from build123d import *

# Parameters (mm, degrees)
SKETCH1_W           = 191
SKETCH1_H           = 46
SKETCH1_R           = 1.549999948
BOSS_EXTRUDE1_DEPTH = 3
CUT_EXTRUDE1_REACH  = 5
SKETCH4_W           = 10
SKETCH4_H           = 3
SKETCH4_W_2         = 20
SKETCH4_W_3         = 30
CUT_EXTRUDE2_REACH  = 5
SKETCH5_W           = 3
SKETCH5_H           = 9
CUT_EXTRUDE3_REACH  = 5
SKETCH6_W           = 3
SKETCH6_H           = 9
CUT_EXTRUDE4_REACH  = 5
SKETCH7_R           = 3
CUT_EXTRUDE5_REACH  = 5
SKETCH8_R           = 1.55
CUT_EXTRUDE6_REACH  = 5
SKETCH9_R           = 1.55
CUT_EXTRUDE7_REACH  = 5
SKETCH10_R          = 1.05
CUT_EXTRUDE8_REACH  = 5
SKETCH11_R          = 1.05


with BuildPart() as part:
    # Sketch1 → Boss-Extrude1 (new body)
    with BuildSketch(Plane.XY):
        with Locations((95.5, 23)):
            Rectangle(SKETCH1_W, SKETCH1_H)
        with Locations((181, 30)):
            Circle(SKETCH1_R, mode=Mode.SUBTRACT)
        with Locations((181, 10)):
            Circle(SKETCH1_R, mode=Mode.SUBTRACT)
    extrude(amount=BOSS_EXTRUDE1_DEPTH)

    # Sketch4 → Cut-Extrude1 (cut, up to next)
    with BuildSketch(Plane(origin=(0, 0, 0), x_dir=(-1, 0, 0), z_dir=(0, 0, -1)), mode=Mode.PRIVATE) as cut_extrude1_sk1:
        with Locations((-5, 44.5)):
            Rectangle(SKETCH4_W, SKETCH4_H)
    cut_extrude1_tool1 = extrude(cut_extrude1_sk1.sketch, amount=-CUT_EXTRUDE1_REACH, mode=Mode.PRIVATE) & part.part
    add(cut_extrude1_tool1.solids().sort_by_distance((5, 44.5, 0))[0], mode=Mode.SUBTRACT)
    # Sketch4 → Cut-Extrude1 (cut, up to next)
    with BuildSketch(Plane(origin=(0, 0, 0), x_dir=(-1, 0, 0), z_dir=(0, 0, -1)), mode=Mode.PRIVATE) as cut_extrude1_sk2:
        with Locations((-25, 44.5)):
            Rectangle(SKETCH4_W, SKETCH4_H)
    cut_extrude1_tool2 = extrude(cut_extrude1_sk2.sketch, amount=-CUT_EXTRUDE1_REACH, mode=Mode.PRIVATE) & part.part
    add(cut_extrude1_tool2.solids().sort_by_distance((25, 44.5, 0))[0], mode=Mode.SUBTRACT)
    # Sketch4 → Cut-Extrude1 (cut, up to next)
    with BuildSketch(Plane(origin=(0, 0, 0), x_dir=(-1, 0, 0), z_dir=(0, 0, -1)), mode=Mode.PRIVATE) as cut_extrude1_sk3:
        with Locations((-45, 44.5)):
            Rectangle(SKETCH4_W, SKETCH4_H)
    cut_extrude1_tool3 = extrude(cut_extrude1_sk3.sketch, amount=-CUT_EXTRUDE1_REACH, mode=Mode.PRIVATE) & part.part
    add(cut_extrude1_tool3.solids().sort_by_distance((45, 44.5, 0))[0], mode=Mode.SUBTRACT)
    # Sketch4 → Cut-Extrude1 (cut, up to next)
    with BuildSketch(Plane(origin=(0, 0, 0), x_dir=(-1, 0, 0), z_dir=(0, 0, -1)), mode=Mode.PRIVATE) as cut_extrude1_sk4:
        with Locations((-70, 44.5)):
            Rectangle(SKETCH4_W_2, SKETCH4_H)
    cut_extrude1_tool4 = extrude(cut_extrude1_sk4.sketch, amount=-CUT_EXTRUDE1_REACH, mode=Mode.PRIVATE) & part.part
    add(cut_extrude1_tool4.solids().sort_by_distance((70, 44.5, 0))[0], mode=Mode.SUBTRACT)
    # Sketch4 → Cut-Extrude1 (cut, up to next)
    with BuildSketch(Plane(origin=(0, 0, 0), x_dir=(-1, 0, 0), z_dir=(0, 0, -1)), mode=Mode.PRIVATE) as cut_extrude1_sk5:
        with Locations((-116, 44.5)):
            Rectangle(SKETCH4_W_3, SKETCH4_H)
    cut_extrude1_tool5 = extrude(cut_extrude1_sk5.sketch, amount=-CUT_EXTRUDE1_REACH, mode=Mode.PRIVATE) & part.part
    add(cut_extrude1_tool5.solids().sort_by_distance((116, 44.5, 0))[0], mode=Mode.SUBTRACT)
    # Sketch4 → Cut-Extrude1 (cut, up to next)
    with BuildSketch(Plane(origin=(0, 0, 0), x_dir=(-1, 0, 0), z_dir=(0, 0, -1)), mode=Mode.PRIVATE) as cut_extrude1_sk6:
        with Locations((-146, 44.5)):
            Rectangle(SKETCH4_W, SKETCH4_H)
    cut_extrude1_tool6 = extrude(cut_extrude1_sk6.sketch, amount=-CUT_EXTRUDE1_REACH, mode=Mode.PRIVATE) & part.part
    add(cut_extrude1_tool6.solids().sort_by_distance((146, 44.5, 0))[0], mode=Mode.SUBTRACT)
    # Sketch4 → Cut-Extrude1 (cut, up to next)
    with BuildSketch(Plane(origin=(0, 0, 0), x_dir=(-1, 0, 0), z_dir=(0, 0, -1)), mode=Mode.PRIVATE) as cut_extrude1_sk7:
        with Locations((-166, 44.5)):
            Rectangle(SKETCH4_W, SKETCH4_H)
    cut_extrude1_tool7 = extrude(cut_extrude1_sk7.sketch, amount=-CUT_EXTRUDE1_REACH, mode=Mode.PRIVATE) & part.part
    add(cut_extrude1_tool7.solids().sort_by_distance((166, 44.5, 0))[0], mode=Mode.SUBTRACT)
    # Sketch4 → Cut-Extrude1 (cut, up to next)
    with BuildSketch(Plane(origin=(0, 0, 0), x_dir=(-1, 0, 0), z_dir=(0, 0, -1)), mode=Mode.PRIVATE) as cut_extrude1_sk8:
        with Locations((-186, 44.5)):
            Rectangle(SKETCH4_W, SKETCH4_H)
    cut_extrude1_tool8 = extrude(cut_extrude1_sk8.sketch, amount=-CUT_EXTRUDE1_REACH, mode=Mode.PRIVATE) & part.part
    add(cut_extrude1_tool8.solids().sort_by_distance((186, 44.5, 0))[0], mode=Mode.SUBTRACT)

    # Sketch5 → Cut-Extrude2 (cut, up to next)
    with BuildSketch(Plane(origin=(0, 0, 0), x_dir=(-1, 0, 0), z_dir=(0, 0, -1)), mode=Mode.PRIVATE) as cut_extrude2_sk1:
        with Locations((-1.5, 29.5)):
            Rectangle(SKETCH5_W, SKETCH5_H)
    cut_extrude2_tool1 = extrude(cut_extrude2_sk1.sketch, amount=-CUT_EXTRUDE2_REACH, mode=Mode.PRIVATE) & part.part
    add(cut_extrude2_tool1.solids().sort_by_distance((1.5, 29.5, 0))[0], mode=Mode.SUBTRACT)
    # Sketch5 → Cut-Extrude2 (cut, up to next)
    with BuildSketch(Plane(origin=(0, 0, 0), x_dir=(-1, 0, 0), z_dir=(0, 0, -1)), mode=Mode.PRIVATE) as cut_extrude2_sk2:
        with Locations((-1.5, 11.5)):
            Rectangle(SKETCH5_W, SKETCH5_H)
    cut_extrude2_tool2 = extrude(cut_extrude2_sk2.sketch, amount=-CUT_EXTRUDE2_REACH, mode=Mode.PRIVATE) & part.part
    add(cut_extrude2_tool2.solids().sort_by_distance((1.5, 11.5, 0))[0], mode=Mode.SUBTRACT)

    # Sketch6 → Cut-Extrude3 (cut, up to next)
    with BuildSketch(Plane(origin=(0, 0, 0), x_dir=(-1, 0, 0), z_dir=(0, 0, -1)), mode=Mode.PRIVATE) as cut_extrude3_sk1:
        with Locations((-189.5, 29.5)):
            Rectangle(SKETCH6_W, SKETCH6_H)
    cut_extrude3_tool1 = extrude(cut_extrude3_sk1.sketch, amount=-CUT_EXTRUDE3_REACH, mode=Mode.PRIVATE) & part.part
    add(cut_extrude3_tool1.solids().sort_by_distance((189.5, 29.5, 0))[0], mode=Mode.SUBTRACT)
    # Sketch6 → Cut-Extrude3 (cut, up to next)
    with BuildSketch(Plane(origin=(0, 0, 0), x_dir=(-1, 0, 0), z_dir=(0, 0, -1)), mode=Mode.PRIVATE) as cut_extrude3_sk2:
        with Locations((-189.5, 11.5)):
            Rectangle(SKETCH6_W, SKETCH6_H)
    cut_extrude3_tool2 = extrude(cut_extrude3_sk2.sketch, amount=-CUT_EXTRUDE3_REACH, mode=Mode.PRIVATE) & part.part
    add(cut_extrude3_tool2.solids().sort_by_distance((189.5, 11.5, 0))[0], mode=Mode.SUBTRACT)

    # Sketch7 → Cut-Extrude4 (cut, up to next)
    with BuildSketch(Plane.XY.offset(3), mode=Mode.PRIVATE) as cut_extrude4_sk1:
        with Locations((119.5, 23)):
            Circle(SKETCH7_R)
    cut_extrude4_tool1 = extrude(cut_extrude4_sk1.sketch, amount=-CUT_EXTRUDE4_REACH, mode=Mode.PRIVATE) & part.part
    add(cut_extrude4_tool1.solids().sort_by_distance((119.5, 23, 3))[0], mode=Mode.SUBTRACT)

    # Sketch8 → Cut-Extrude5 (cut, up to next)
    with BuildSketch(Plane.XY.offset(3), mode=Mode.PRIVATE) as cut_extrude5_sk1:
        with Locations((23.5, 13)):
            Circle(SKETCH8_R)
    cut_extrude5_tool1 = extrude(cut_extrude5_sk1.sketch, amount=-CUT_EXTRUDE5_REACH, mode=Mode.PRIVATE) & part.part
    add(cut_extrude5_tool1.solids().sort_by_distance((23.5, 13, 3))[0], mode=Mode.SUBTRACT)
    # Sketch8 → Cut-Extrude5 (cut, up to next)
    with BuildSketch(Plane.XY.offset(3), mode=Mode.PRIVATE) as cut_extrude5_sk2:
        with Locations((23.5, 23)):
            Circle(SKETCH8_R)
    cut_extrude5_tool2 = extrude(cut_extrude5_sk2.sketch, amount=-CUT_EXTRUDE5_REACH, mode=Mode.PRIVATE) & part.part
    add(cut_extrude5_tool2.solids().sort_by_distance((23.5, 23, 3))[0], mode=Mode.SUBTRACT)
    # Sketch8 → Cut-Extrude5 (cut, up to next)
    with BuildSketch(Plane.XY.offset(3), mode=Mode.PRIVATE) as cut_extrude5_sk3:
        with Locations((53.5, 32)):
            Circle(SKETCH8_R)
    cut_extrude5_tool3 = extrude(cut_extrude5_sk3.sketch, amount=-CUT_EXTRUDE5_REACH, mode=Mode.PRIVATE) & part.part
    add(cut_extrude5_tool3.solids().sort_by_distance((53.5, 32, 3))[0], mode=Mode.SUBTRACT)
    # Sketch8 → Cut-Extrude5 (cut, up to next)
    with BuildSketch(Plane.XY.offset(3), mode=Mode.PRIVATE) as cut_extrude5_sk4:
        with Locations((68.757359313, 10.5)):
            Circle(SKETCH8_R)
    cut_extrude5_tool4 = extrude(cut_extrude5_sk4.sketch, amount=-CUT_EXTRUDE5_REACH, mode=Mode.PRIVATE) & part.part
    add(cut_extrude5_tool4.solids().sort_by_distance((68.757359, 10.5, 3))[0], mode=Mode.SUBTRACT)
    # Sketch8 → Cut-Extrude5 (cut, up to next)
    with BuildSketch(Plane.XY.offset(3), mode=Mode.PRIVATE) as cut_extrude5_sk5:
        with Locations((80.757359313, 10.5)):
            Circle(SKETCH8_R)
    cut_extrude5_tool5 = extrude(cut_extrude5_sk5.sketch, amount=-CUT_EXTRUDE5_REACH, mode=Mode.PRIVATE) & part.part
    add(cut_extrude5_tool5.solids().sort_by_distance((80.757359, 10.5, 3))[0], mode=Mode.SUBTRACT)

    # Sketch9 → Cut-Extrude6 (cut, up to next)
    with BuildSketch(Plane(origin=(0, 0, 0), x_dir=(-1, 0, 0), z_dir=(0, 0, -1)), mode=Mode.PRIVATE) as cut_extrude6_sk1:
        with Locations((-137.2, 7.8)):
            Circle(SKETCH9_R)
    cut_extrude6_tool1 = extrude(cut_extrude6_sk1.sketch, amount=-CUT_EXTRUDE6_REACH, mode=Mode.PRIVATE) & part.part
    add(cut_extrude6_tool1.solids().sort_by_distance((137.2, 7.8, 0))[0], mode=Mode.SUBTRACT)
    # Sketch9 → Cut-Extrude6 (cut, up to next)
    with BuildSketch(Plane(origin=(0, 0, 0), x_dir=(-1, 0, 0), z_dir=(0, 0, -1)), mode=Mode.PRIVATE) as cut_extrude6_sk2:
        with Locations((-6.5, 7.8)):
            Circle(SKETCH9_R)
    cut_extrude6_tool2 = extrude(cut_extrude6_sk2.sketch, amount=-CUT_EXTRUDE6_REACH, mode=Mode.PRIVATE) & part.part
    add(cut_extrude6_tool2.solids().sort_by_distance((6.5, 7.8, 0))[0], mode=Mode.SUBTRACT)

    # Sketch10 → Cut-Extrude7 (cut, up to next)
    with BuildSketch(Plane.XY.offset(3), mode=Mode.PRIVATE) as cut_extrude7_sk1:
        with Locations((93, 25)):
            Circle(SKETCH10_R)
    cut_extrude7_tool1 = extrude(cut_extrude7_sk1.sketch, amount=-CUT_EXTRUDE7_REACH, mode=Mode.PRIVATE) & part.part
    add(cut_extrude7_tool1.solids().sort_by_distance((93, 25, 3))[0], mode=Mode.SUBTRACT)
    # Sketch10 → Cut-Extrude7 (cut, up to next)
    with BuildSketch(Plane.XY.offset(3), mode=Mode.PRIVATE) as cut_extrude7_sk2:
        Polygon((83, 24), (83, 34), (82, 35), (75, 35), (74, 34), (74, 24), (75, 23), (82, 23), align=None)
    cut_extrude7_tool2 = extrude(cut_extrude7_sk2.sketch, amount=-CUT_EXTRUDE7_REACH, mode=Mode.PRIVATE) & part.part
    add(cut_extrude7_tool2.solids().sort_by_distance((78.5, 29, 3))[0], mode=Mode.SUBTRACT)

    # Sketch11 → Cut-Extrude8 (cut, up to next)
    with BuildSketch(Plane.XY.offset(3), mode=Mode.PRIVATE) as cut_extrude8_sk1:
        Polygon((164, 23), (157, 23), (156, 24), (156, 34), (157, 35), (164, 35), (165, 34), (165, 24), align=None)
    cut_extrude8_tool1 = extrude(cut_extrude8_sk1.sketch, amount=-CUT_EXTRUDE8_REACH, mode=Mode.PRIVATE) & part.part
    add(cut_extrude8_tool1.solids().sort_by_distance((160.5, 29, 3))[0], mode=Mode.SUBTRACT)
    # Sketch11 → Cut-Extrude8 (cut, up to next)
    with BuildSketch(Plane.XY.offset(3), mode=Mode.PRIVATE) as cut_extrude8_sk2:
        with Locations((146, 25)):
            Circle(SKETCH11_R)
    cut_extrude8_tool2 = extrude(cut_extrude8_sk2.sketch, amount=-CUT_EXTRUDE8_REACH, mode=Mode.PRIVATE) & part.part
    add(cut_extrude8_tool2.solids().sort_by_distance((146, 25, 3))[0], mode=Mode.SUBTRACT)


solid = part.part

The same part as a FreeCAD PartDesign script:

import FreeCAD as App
import Part
import Sketcher

doc = App.newDocument("Part")
body = doc.addObject("PartDesign::Body", "Body")

# Sketch on XY plane
sketch1 = doc.addObject("Sketcher::SketchObject", "Sketch")
body.addObject(sketch1)
sketch1.AttachmentSupport = (doc.XY_Plane, [""])
sketch1.MapMode = "FlatFace"
sketch1.addGeometry([
    Part.LineSegment(App.Vector(0, 46, 0), App.Vector(0, 0, 0)),  # 0
    Part.LineSegment(App.Vector(0, 0, 0), App.Vector(191, 0, 0)),  # 1
    Part.LineSegment(App.Vector(191, 0, 0), App.Vector(191, 46, 0)),  # 2
    Part.LineSegment(App.Vector(191, 46, 0), App.Vector(0, 46, 0)),  # 3
    Part.Circle(App.Vector(181, 10, 0), App.Vector(0, 0, 1), 1.55),  # 4
    Part.Circle(App.Vector(181, 30, 0), App.Vector(0, 0, 1), 1.55),  # 5
], False)
sketch1.addConstraint([
    Sketcher.Constraint("Coincident", 0, 2, 1, 1),
    Sketcher.Constraint("Coincident", 1, 2, 2, 1),
    Sketcher.Constraint("Coincident", 2, 2, 3, 1),
    Sketcher.Constraint("Coincident", 3, 2, 0, 1),
    Sketcher.Constraint("Vertical", 0),
    Sketcher.Constraint("Horizontal", 1),
    Sketcher.Constraint("Vertical", 2),
    Sketcher.Constraint("Horizontal", 3),
    Sketcher.Constraint("Coincident", 0, 2, -1, 1),
    Sketcher.Constraint("Equal", 4, 5),
    Sketcher.Constraint("Vertical", 4, 3, 5, 3),
    Sketcher.Constraint("Diameter", 4, 3.1),
    Sketcher.Constraint("DistanceX", 1, 1, 1, 2, 191.0),
    Sketcher.Constraint("DistanceY", 0, 2, 0, 1, 46.0),
    Sketcher.Constraint("DistanceX", -1, 1, 4, 3, 181.0),
    Sketcher.Constraint("DistanceY", -1, 1, 4, 3, 10.0),
    Sketcher.Constraint("DistanceY", -1, 1, 5, 3, 30.0),
])
pad1 = doc.addObject("PartDesign::Pad", "Pad")
body.addObject(pad1)
pad1.Profile = sketch1
pad1.Length = 3

# Sketch on XY plane
sketch2 = doc.addObject("Sketcher::SketchObject", "Sketch001")
body.addObject(sketch2)
sketch2.AttachmentSupport = (doc.XY_Plane, [""])
sketch2.MapMode = "FlatFace"
sketch2.addGeometry([
    Part.LineSegment(App.Vector(10, 46, 0), App.Vector(10, 43, 0)),
    Part.LineSegment(App.Vector(10, 43, 0), App.Vector(0, 43, 0)),
    Part.LineSegment(App.Vector(0, 43, 0), App.Vector(0, 46, 0)),
    Part.LineSegment(App.Vector(0, 46, 0), App.Vector(10, 46, 0)),
], False)
sketch2.addConstraint([
    Sketcher.Constraint("Coincident", 0, 2, 1, 1),
    Sketcher.Constraint("Coincident", 1, 2, 2, 1),
    Sketcher.Constraint("Coincident", 2, 2, 3, 1),
    Sketcher.Constraint("Coincident", 3, 2, 0, 1),
    Sketcher.Constraint("Vertical", 0),
    Sketcher.Constraint("Horizontal", 1),
    Sketcher.Constraint("Vertical", 2),
    Sketcher.Constraint("Horizontal", 3),
    Sketcher.Constraint("PointOnObject", 1, 2, -2),
    Sketcher.Constraint("DistanceX", 1, 2, 1, 1, 10.0),
    Sketcher.Constraint("DistanceY", 0, 2, 0, 1, 3.0),
    Sketcher.Constraint("DistanceY", -1, 1, 0, 2, 43.0),
])
pocket1 = doc.addObject("PartDesign::Pocket", "Pocket")
body.addObject(pocket1)
pocket1.Profile = sketch2
pocket1.Type = "UpToFirst"
pocket1.Reversed = True

# Sketch on XY plane
sketch3 = doc.addObject("Sketcher::SketchObject", "Sketch002")
body.addObject(sketch3)
sketch3.AttachmentSupport = (doc.XY_Plane, [""])
sketch3.MapMode = "FlatFace"
sketch3.addGeometry([
    Part.LineSegment(App.Vector(30, 46, 0), App.Vector(30, 43, 0)),
    Part.LineSegment(App.Vector(30, 43, 0), App.Vector(20, 43, 0)),
    Part.LineSegment(App.Vector(20, 43, 0), App.Vector(20, 46, 0)),
    Part.LineSegment(App.Vector(20, 46, 0), App.Vector(30, 46, 0)),
], False)
sketch3.addConstraint([
    Sketcher.Constraint("Coincident", 0, 2, 1, 1),
    Sketcher.Constraint("Coincident", 1, 2, 2, 1),
    Sketcher.Constraint("Coincident", 2, 2, 3, 1),
    Sketcher.Constraint("Coincident", 3, 2, 0, 1),
    Sketcher.Constraint("Vertical", 0),
    Sketcher.Constraint("Horizontal", 1),
    Sketcher.Constraint("Vertical", 2),
    Sketcher.Constraint("Horizontal", 3),
    Sketcher.Constraint("DistanceX", 1, 2, 1, 1, 10.0),
    Sketcher.Constraint("DistanceY", 0, 2, 0, 1, 3.0),
    Sketcher.Constraint("DistanceX", -1, 1, 0, 2, 30.0),
    Sketcher.Constraint("DistanceY", -1, 1, 0, 2, 43.0),
])
pocket2 = doc.addObject("PartDesign::Pocket", "Pocket001")
body.addObject(pocket2)
pocket2.Profile = sketch3
pocket2.Type = "UpToFirst"
pocket2.Reversed = True

# Sketch on XY plane
sketch4 = doc.addObject("Sketcher::SketchObject", "Sketch003")
body.addObject(sketch4)
sketch4.AttachmentSupport = (doc.XY_Plane, [""])
sketch4.MapMode = "FlatFace"
sketch4.addGeometry([
    Part.LineSegment(App.Vector(50, 46, 0), App.Vector(50, 43, 0)),
    Part.LineSegment(App.Vector(50, 43, 0), App.Vector(40, 43, 0)),
    Part.LineSegment(App.Vector(40, 43, 0), App.Vector(40, 46, 0)),
    Part.LineSegment(App.Vector(40, 46, 0), App.Vector(50, 46, 0)),
], False)
sketch4.addConstraint([
    Sketcher.Constraint("Coincident", 0, 2, 1, 1),
    Sketcher.Constraint("Coincident", 1, 2, 2, 1),
    Sketcher.Constraint("Coincident", 2, 2, 3, 1),
    Sketcher.Constraint("Coincident", 3, 2, 0, 1),
    Sketcher.Constraint("Vertical", 0),
    Sketcher.Constraint("Horizontal", 1),
    Sketcher.Constraint("Vertical", 2),
    Sketcher.Constraint("Horizontal", 3),
    Sketcher.Constraint("DistanceX", 1, 2, 1, 1, 10.0),
    Sketcher.Constraint("DistanceY", 0, 2, 0, 1, 3.0),
    Sketcher.Constraint("DistanceX", -1, 1, 0, 2, 50.0),
    Sketcher.Constraint("DistanceY", -1, 1, 0, 2, 43.0),
])
pocket3 = doc.addObject("PartDesign::Pocket", "Pocket002")
body.addObject(pocket3)
pocket3.Profile = sketch4
pocket3.Type = "UpToFirst"
pocket3.Reversed = True

# Sketch on XY plane
sketch5 = doc.addObject("Sketcher::SketchObject", "Sketch004")
body.addObject(sketch5)
sketch5.AttachmentSupport = (doc.XY_Plane, [""])
sketch5.MapMode = "FlatFace"
sketch5.addGeometry([
    Part.LineSegment(App.Vector(80, 46, 0), App.Vector(80, 43, 0)),
    Part.LineSegment(App.Vector(80, 43, 0), App.Vector(60, 43, 0)),
    Part.LineSegment(App.Vector(60, 43, 0), App.Vector(60, 46, 0)),
    Part.LineSegment(App.Vector(60, 46, 0), App.Vector(80, 46, 0)),
], False)
sketch5.addConstraint([
    Sketcher.Constraint("Coincident", 0, 2, 1, 1),
    Sketcher.Constraint("Coincident", 1, 2, 2, 1),
    Sketcher.Constraint("Coincident", 2, 2, 3, 1),
    Sketcher.Constraint("Coincident", 3, 2, 0, 1),
    Sketcher.Constraint("Vertical", 0),
    Sketcher.Constraint("Horizontal", 1),
    Sketcher.Constraint("Vertical", 2),
    Sketcher.Constraint("Horizontal", 3),
    Sketcher.Constraint("DistanceX", 1, 2, 1, 1, 20.0),
    Sketcher.Constraint("DistanceY", 0, 2, 0, 1, 3.0),
    Sketcher.Constraint("DistanceX", -1, 1, 0, 2, 80.0),
    Sketcher.Constraint("DistanceY", -1, 1, 0, 2, 43.0),
])
pocket4 = doc.addObject("PartDesign::Pocket", "Pocket003")
body.addObject(pocket4)
pocket4.Profile = sketch5
pocket4.Type = "UpToFirst"
pocket4.Reversed = True

# Sketch on XY plane
sketch6 = doc.addObject("Sketcher::SketchObject", "Sketch005")
body.addObject(sketch6)
sketch6.AttachmentSupport = (doc.XY_Plane, [""])
sketch6.MapMode = "FlatFace"
sketch6.addGeometry([
    Part.LineSegment(App.Vector(131, 46, 0), App.Vector(131, 43, 0)),
    Part.LineSegment(App.Vector(131, 43, 0), App.Vector(101, 43, 0)),
    Part.LineSegment(App.Vector(101, 43, 0), App.Vector(101, 46, 0)),
    Part.LineSegment(App.Vector(101, 46, 0), App.Vector(131, 46, 0)),
], False)
sketch6.addConstraint([
    Sketcher.Constraint("Coincident", 0, 2, 1, 1),
    Sketcher.Constraint("Coincident", 1, 2, 2, 1),
    Sketcher.Constraint("Coincident", 2, 2, 3, 1),
    Sketcher.Constraint("Coincident", 3, 2, 0, 1),
    Sketcher.Constraint("Vertical", 0),
    Sketcher.Constraint("Horizontal", 1),
    Sketcher.Constraint("Vertical", 2),
    Sketcher.Constraint("Horizontal", 3),
    Sketcher.Constraint("DistanceX", 1, 2, 1, 1, 30.0),
    Sketcher.Constraint("DistanceY", 0, 2, 0, 1, 3.0),
    Sketcher.Constraint("DistanceX", -1, 1, 0, 2, 131.0),
    Sketcher.Constraint("DistanceY", -1, 1, 0, 2, 43.0),
])
pocket5 = doc.addObject("PartDesign::Pocket", "Pocket004")
body.addObject(pocket5)
pocket5.Profile = sketch6
pocket5.Type = "UpToFirst"
pocket5.Reversed = True

# Sketch on XY plane
sketch7 = doc.addObject("Sketcher::SketchObject", "Sketch006")
body.addObject(sketch7)
sketch7.AttachmentSupport = (doc.XY_Plane, [""])
sketch7.MapMode = "FlatFace"
sketch7.addGeometry([
    Part.LineSegment(App.Vector(151, 46, 0), App.Vector(151, 43, 0)),
    Part.LineSegment(App.Vector(151, 43, 0), App.Vector(141, 43, 0)),
    Part.LineSegment(App.Vector(141, 43, 0), App.Vector(141, 46, 0)),
    Part.LineSegment(App.Vector(141, 46, 0), App.Vector(151, 46, 0)),
], False)
sketch7.addConstraint([
    Sketcher.Constraint("Coincident", 0, 2, 1, 1),
    Sketcher.Constraint("Coincident", 1, 2, 2, 1),
    Sketcher.Constraint("Coincident", 2, 2, 3, 1),
    Sketcher.Constraint("Coincident", 3, 2, 0, 1),
    Sketcher.Constraint("Vertical", 0),
    Sketcher.Constraint("Horizontal", 1),
    Sketcher.Constraint("Vertical", 2),
    Sketcher.Constraint("Horizontal", 3),
    Sketcher.Constraint("DistanceX", 1, 2, 1, 1, 10.0),
    Sketcher.Constraint("DistanceY", 0, 2, 0, 1, 3.0),
    Sketcher.Constraint("DistanceX", -1, 1, 0, 2, 151.0),
    Sketcher.Constraint("DistanceY", -1, 1, 0, 2, 43.0),
])
pocket6 = doc.addObject("PartDesign::Pocket", "Pocket005")
body.addObject(pocket6)
pocket6.Profile = sketch7
pocket6.Type = "UpToFirst"
pocket6.Reversed = True

# Sketch on XY plane
sketch8 = doc.addObject("Sketcher::SketchObject", "Sketch007")
body.addObject(sketch8)
sketch8.AttachmentSupport = (doc.XY_Plane, [""])
sketch8.MapMode = "FlatFace"
sketch8.addGeometry([
    Part.LineSegment(App.Vector(171, 46, 0), App.Vector(171, 43, 0)),
    Part.LineSegment(App.Vector(171, 43, 0), App.Vector(161, 43, 0)),
    Part.LineSegment(App.Vector(161, 43, 0), App.Vector(161, 46, 0)),
    Part.LineSegment(App.Vector(161, 46, 0), App.Vector(171, 46, 0)),
], False)
sketch8.addConstraint([
    Sketcher.Constraint("Coincident", 0, 2, 1, 1),
    Sketcher.Constraint("Coincident", 1, 2, 2, 1),
    Sketcher.Constraint("Coincident", 2, 2, 3, 1),
    Sketcher.Constraint("Coincident", 3, 2, 0, 1),
    Sketcher.Constraint("Vertical", 0),
    Sketcher.Constraint("Horizontal", 1),
    Sketcher.Constraint("Vertical", 2),
    Sketcher.Constraint("Horizontal", 3),
    Sketcher.Constraint("DistanceX", 1, 2, 1, 1, 10.0),
    Sketcher.Constraint("DistanceY", 0, 2, 0, 1, 3.0),
    Sketcher.Constraint("DistanceX", -1, 1, 0, 2, 171.0),
    Sketcher.Constraint("DistanceY", -1, 1, 0, 2, 43.0),
])
pocket7 = doc.addObject("PartDesign::Pocket", "Pocket006")
body.addObject(pocket7)
pocket7.Profile = sketch8
pocket7.Type = "UpToFirst"
pocket7.Reversed = True

# Sketch on XY plane
sketch9 = doc.addObject("Sketcher::SketchObject", "Sketch008")
body.addObject(sketch9)
sketch9.AttachmentSupport = (doc.XY_Plane, [""])
sketch9.MapMode = "FlatFace"
sketch9.addGeometry([
    Part.LineSegment(App.Vector(191, 46, 0), App.Vector(191, 43, 0)),
    Part.LineSegment(App.Vector(191, 43, 0), App.Vector(181, 43, 0)),
    Part.LineSegment(App.Vector(181, 43, 0), App.Vector(181, 46, 0)),
    Part.LineSegment(App.Vector(181, 46, 0), App.Vector(191, 46, 0)),
], False)
sketch9.addConstraint([
    Sketcher.Constraint("Coincident", 0, 2, 1, 1),
    Sketcher.Constraint("Coincident", 1, 2, 2, 1),
    Sketcher.Constraint("Coincident", 2, 2, 3, 1),
    Sketcher.Constraint("Coincident", 3, 2, 0, 1),
    Sketcher.Constraint("Vertical", 0),
    Sketcher.Constraint("Horizontal", 1),
    Sketcher.Constraint("Vertical", 2),
    Sketcher.Constraint("Horizontal", 3),
    Sketcher.Constraint("DistanceX", 1, 2, 1, 1, 10.0),
    Sketcher.Constraint("DistanceY", 0, 2, 0, 1, 3.0),
    Sketcher.Constraint("DistanceX", -1, 1, 0, 2, 191.0),
    Sketcher.Constraint("DistanceY", -1, 1, 0, 2, 43.0),
])
pocket8 = doc.addObject("PartDesign::Pocket", "Pocket007")
body.addObject(pocket8)
pocket8.Profile = sketch9
pocket8.Type = "UpToFirst"
pocket8.Reversed = True

# Sketch on XY plane
sketch10 = doc.addObject("Sketcher::SketchObject", "Sketch009")
body.addObject(sketch10)
sketch10.AttachmentSupport = (doc.XY_Plane, [""])
sketch10.MapMode = "FlatFace"
sketch10.addGeometry([
    Part.LineSegment(App.Vector(3, 34, 0), App.Vector(3, 25, 0)),
    Part.LineSegment(App.Vector(3, 25, 0), App.Vector(0, 25, 0)),
    Part.LineSegment(App.Vector(0, 25, 0), App.Vector(0, 34, 0)),
    Part.LineSegment(App.Vector(0, 34, 0), App.Vector(3, 34, 0)),
], False)
sketch10.addConstraint([
    Sketcher.Constraint("Coincident", 0, 2, 1, 1),
    Sketcher.Constraint("Coincident", 1, 2, 2, 1),
    Sketcher.Constraint("Coincident", 2, 2, 3, 1),
    Sketcher.Constraint("Coincident", 3, 2, 0, 1),
    Sketcher.Constraint("Vertical", 0),
    Sketcher.Constraint("Horizontal", 1),
    Sketcher.Constraint("Vertical", 2),
    Sketcher.Constraint("Horizontal", 3),
    Sketcher.Constraint("PointOnObject", 1, 2, -2),
    Sketcher.Constraint("DistanceX", 1, 2, 1, 1, 3.0),
    Sketcher.Constraint("DistanceY", 0, 2, 0, 1, 9.0),
    Sketcher.Constraint("DistanceY", -1, 1, 0, 2, 25.0),
])
pocket9 = doc.addObject("PartDesign::Pocket", "Pocket008")
body.addObject(pocket9)
pocket9.Profile = sketch10
pocket9.Type = "UpToFirst"
pocket9.Reversed = True

# Sketch on XY plane
sketch11 = doc.addObject("Sketcher::SketchObject", "Sketch010")
body.addObject(sketch11)
sketch11.AttachmentSupport = (doc.XY_Plane, [""])
sketch11.MapMode = "FlatFace"
sketch11.addGeometry([
    Part.LineSegment(App.Vector(3, 16, 0), App.Vector(3, 7, 0)),
    Part.LineSegment(App.Vector(3, 7, 0), App.Vector(0, 7, 0)),
    Part.LineSegment(App.Vector(0, 7, 0), App.Vector(0, 16, 0)),
    Part.LineSegment(App.Vector(0, 16, 0), App.Vector(3, 16, 0)),
], False)
sketch11.addConstraint([
    Sketcher.Constraint("Coincident", 0, 2, 1, 1),
    Sketcher.Constraint("Coincident", 1, 2, 2, 1),
    Sketcher.Constraint("Coincident", 2, 2, 3, 1),
    Sketcher.Constraint("Coincident", 3, 2, 0, 1),
    Sketcher.Constraint("Vertical", 0),
    Sketcher.Constraint("Horizontal", 1),
    Sketcher.Constraint("Vertical", 2),
    Sketcher.Constraint("Horizontal", 3),
    Sketcher.Constraint("PointOnObject", 1, 2, -2),
    Sketcher.Constraint("DistanceX", 1, 2, 1, 1, 3.0),
    Sketcher.Constraint("DistanceY", 0, 2, 0, 1, 9.0),
    Sketcher.Constraint("DistanceY", -1, 1, 0, 2, 7.0),
])
pocket10 = doc.addObject("PartDesign::Pocket", "Pocket009")
body.addObject(pocket10)
pocket10.Profile = sketch11
pocket10.Type = "UpToFirst"
pocket10.Reversed = True

# Sketch on XY plane
sketch12 = doc.addObject("Sketcher::SketchObject", "Sketch011")
body.addObject(sketch12)
sketch12.AttachmentSupport = (doc.XY_Plane, [""])
sketch12.MapMode = "FlatFace"
sketch12.addGeometry([
    Part.LineSegment(App.Vector(191, 34, 0), App.Vector(191, 25, 0)),
    Part.LineSegment(App.Vector(191, 25, 0), App.Vector(188, 25, 0)),
    Part.LineSegment(App.Vector(188, 25, 0), App.Vector(188, 34, 0)),
    Part.LineSegment(App.Vector(188, 34, 0), App.Vector(191, 34, 0)),
], False)
sketch12.addConstraint([
    Sketcher.Constraint("Coincident", 0, 2, 1, 1),
    Sketcher.Constraint("Coincident", 1, 2, 2, 1),
    Sketcher.Constraint("Coincident", 2, 2, 3, 1),
    Sketcher.Constraint("Coincident", 3, 2, 0, 1),
    Sketcher.Constraint("Vertical", 0),
    Sketcher.Constraint("Horizontal", 1),
    Sketcher.Constraint("Vertical", 2),
    Sketcher.Constraint("Horizontal", 3),
    Sketcher.Constraint("DistanceX", 1, 2, 1, 1, 3.0),
    Sketcher.Constraint("DistanceY", 0, 2, 0, 1, 9.0),
    Sketcher.Constraint("DistanceX", -1, 1, 0, 2, 191.0),
    Sketcher.Constraint("DistanceY", -1, 1, 0, 2, 25.0),
])
pocket11 = doc.addObject("PartDesign::Pocket", "Pocket010")
body.addObject(pocket11)
pocket11.Profile = sketch12
pocket11.Type = "UpToFirst"
pocket11.Reversed = True

# Sketch on XY plane
sketch13 = doc.addObject("Sketcher::SketchObject", "Sketch012")
body.addObject(sketch13)
sketch13.AttachmentSupport = (doc.XY_Plane, [""])
sketch13.MapMode = "FlatFace"
sketch13.addGeometry([
    Part.LineSegment(App.Vector(191, 16, 0), App.Vector(191, 7, 0)),
    Part.LineSegment(App.Vector(191, 7, 0), App.Vector(188, 7, 0)),
    Part.LineSegment(App.Vector(188, 7, 0), App.Vector(188, 16, 0)),
    Part.LineSegment(App.Vector(188, 16, 0), App.Vector(191, 16, 0)),
], False)
sketch13.addConstraint([
    Sketcher.Constraint("Coincident", 0, 2, 1, 1),
    Sketcher.Constraint("Coincident", 1, 2, 2, 1),
    Sketcher.Constraint("Coincident", 2, 2, 3, 1),
    Sketcher.Constraint("Coincident", 3, 2, 0, 1),
    Sketcher.Constraint("Vertical", 0),
    Sketcher.Constraint("Horizontal", 1),
    Sketcher.Constraint("Vertical", 2),
    Sketcher.Constraint("Horizontal", 3),
    Sketcher.Constraint("DistanceX", 1, 2, 1, 1, 3.0),
    Sketcher.Constraint("DistanceY", 0, 2, 0, 1, 9.0),
    Sketcher.Constraint("DistanceX", -1, 1, 0, 2, 191.0),
    Sketcher.Constraint("DistanceY", -1, 1, 0, 2, 7.0),
])
pocket12 = doc.addObject("PartDesign::Pocket", "Pocket011")
body.addObject(pocket12)
pocket12.Profile = sketch13
pocket12.Type = "UpToFirst"
pocket12.Reversed = True

# Sketch on XY plane
sketch14 = doc.addObject("Sketcher::SketchObject", "Sketch013")
body.addObject(sketch14)
sketch14.AttachmentSupport = (doc.XY_Plane, [""])
sketch14.MapMode = "FlatFace"
sketch14.AttachmentOffset = App.Placement(App.Vector(0, 0, 3), App.Rotation())
sketch14.addGeometry(Part.Circle(App.Vector(119.5, 23, 0), App.Vector(0, 0, 1), 3), False)
sketch14.addConstraint([
    Sketcher.Constraint("Diameter", 0, 6.0),
    Sketcher.Constraint("DistanceY", -1, 1, 0, 3, 23.0),
    Sketcher.Constraint("DistanceX", -1, 1, 0, 3, 119.5),
])
pocket13 = doc.addObject("PartDesign::Pocket", "Pocket012")
body.addObject(pocket13)
pocket13.Profile = sketch14
pocket13.Type = "UpToFirst"

# Sketch on XY plane
sketch15 = doc.addObject("Sketcher::SketchObject", "Sketch014")
body.addObject(sketch15)
sketch15.AttachmentSupport = (doc.XY_Plane, [""])
sketch15.MapMode = "FlatFace"
sketch15.AttachmentOffset = App.Placement(App.Vector(0, 0, 3), App.Rotation())
sketch15.addGeometry(Part.Circle(App.Vector(23.5, 13, 0), App.Vector(0, 0, 1), 1.55), False)
sketch15.addConstraint([
    Sketcher.Constraint("Diameter", 0, 3.1),
    Sketcher.Constraint("DistanceY", -1, 1, 0, 3, 13.0),
    Sketcher.Constraint("DistanceX", -1, 1, 0, 3, 23.5),
])
pocket14 = doc.addObject("PartDesign::Pocket", "Pocket013")
body.addObject(pocket14)
pocket14.Profile = sketch15
pocket14.Type = "UpToFirst"

# Sketch on XY plane
sketch16 = doc.addObject("Sketcher::SketchObject", "Sketch015")
body.addObject(sketch16)
sketch16.AttachmentSupport = (doc.XY_Plane, [""])
sketch16.MapMode = "FlatFace"
sketch16.AttachmentOffset = App.Placement(App.Vector(0, 0, 3), App.Rotation())
sketch16.addGeometry(Part.Circle(App.Vector(23.5, 23, 0), App.Vector(0, 0, 1), 1.55), False)
sketch16.addConstraint([
    Sketcher.Constraint("Diameter", 0, 3.1),
    Sketcher.Constraint("DistanceY", -1, 1, 0, 3, 23.0),
    Sketcher.Constraint("DistanceX", -1, 1, 0, 3, 23.5),
])
pocket15 = doc.addObject("PartDesign::Pocket", "Pocket014")
body.addObject(pocket15)
pocket15.Profile = sketch16
pocket15.Type = "UpToFirst"

# Sketch on XY plane
sketch17 = doc.addObject("Sketcher::SketchObject", "Sketch016")
body.addObject(sketch17)
sketch17.AttachmentSupport = (doc.XY_Plane, [""])
sketch17.MapMode = "FlatFace"
sketch17.AttachmentOffset = App.Placement(App.Vector(0, 0, 3), App.Rotation())
sketch17.addGeometry(Part.Circle(App.Vector(53.5, 32, 0), App.Vector(0, 0, 1), 1.55), False)
sketch17.addConstraint([
    Sketcher.Constraint("Diameter", 0, 3.1),
    Sketcher.Constraint("DistanceY", -1, 1, 0, 3, 32.0),
    Sketcher.Constraint("DistanceX", -1, 1, 0, 3, 53.5),
])
pocket16 = doc.addObject("PartDesign::Pocket", "Pocket015")
body.addObject(pocket16)
pocket16.Profile = sketch17
pocket16.Type = "UpToFirst"

# Sketch on XY plane
sketch18 = doc.addObject("Sketcher::SketchObject", "Sketch017")
body.addObject(sketch18)
sketch18.AttachmentSupport = (doc.XY_Plane, [""])
sketch18.MapMode = "FlatFace"
sketch18.AttachmentOffset = App.Placement(App.Vector(0, 0, 3), App.Rotation())
sketch18.addGeometry(Part.Circle(App.Vector(68.757359, 10.5, 0), App.Vector(0, 0, 1), 1.55), False)
sketch18.addConstraint([
    Sketcher.Constraint("Diameter", 0, 3.1),
    Sketcher.Constraint("DistanceY", -1, 1, 0, 3, 10.5),
    Sketcher.Constraint("DistanceX", -1, 1, 0, 3, 68.757359),
])
pocket17 = doc.addObject("PartDesign::Pocket", "Pocket016")
body.addObject(pocket17)
pocket17.Profile = sketch18
pocket17.Type = "UpToFirst"

# Sketch on XY plane
sketch19 = doc.addObject("Sketcher::SketchObject", "Sketch018")
body.addObject(sketch19)
sketch19.AttachmentSupport = (doc.XY_Plane, [""])
sketch19.MapMode = "FlatFace"
sketch19.AttachmentOffset = App.Placement(App.Vector(0, 0, 3), App.Rotation())
sketch19.addGeometry(Part.Circle(App.Vector(80.757359, 10.5, 0), App.Vector(0, 0, 1), 1.55), False)
sketch19.addConstraint([
    Sketcher.Constraint("Diameter", 0, 3.1),
    Sketcher.Constraint("DistanceY", -1, 1, 0, 3, 10.5),
    Sketcher.Constraint("DistanceX", -1, 1, 0, 3, 80.757359),
])
pocket18 = doc.addObject("PartDesign::Pocket", "Pocket017")
body.addObject(pocket18)
pocket18.Profile = sketch19
pocket18.Type = "UpToFirst"

# Sketch on XY plane
sketch20 = doc.addObject("Sketcher::SketchObject", "Sketch019")
body.addObject(sketch20)
sketch20.AttachmentSupport = (doc.XY_Plane, [""])
sketch20.MapMode = "FlatFace"
sketch20.addGeometry(Part.Circle(App.Vector(137.2, 7.8, 0), App.Vector(0, 0, 1), 1.55), False)
sketch20.addConstraint([
    Sketcher.Constraint("Diameter", 0, 3.1),
    Sketcher.Constraint("DistanceX", -1, 1, 0, 3, 137.2),
    Sketcher.Constraint("DistanceY", -1, 1, 0, 3, 7.8),
])
pocket19 = doc.addObject("PartDesign::Pocket", "Pocket018")
body.addObject(pocket19)
pocket19.Profile = sketch20
pocket19.Type = "UpToFirst"
pocket19.Reversed = True

# Sketch on XY plane
sketch21 = doc.addObject("Sketcher::SketchObject", "Sketch020")
body.addObject(sketch21)
sketch21.AttachmentSupport = (doc.XY_Plane, [""])
sketch21.MapMode = "FlatFace"
sketch21.addGeometry(Part.Circle(App.Vector(6.5, 7.8, 0), App.Vector(0, 0, 1), 1.55), False)
sketch21.addConstraint([
    Sketcher.Constraint("Diameter", 0, 3.1),
    Sketcher.Constraint("DistanceX", -1, 1, 0, 3, 6.5),
    Sketcher.Constraint("DistanceY", -1, 1, 0, 3, 7.8),
])
pocket20 = doc.addObject("PartDesign::Pocket", "Pocket019")
body.addObject(pocket20)
pocket20.Profile = sketch21
pocket20.Type = "UpToFirst"
pocket20.Reversed = True

# Sketch on XY plane
sketch22 = doc.addObject("Sketcher::SketchObject", "Sketch021")
body.addObject(sketch22)
sketch22.AttachmentSupport = (doc.XY_Plane, [""])
sketch22.MapMode = "FlatFace"
sketch22.AttachmentOffset = App.Placement(App.Vector(0, 0, 3), App.Rotation())
sketch22.addGeometry(Part.Circle(App.Vector(93, 25, 0), App.Vector(0, 0, 1), 1.05), False)
sketch22.addConstraint([
    Sketcher.Constraint("Diameter", 0, 2.1),
    Sketcher.Constraint("DistanceX", -1, 1, 0, 3, 93.0),
    Sketcher.Constraint("DistanceY", -1, 1, 0, 3, 25.0),
])
pocket21 = doc.addObject("PartDesign::Pocket", "Pocket020")
body.addObject(pocket21)
pocket21.Profile = sketch22
pocket21.Type = "UpToFirst"

# Sketch on XY plane
sketch23 = doc.addObject("Sketcher::SketchObject", "Sketch022")
body.addObject(sketch23)
sketch23.AttachmentSupport = (doc.XY_Plane, [""])
sketch23.MapMode = "FlatFace"
sketch23.AttachmentOffset = App.Placement(App.Vector(0, 0, 3), App.Rotation())
sketch23.addGeometry([
    Part.LineSegment(App.Vector(83, 24, 0), App.Vector(83, 34, 0)),  # 0
    Part.LineSegment(App.Vector(83, 34, 0), App.Vector(82, 35, 0)),  # 1
    Part.LineSegment(App.Vector(82, 35, 0), App.Vector(75, 35, 0)),  # 2
    Part.LineSegment(App.Vector(75, 35, 0), App.Vector(74, 34, 0)),  # 3
    Part.LineSegment(App.Vector(74, 34, 0), App.Vector(74, 24, 0)),  # 4
    Part.LineSegment(App.Vector(74, 24, 0), App.Vector(75, 23, 0)),  # 5
    Part.LineSegment(App.Vector(75, 23, 0), App.Vector(82, 23, 0)),  # 6
    Part.LineSegment(App.Vector(82, 23, 0), App.Vector(83, 24, 0)),  # 7
], False)
sketch23.addConstraint([
    Sketcher.Constraint("Coincident", 0, 2, 1, 1),
    Sketcher.Constraint("Coincident", 1, 2, 2, 1),
    Sketcher.Constraint("Coincident", 2, 2, 3, 1),
    Sketcher.Constraint("Coincident", 3, 2, 4, 1),
    Sketcher.Constraint("Coincident", 4, 2, 5, 1),
    Sketcher.Constraint("Coincident", 5, 2, 6, 1),
    Sketcher.Constraint("Coincident", 6, 2, 7, 1),
    Sketcher.Constraint("Coincident", 7, 2, 0, 1),
    Sketcher.Constraint("Vertical", 0),
    Sketcher.Constraint("Horizontal", 2),
    Sketcher.Constraint("Vertical", 4),
    Sketcher.Constraint("Horizontal", 6),
    Sketcher.Constraint("Perpendicular", 1, 3),
    Sketcher.Constraint("Perpendicular", 3, 5),
    Sketcher.Constraint("Perpendicular", 5, 7),
    Sketcher.Constraint("Horizontal", 0, 2, 3, 2),
    Sketcher.Constraint("Horizontal", 4, 2, 7, 2),
    Sketcher.Constraint("Vertical", 2, 2, 5, 2),
    Sketcher.Constraint("Vertical", 1, 2, 6, 2),
    Sketcher.Constraint("DistanceX", 2, 2, 2, 1, 7.0),
    Sketcher.Constraint("DistanceY", 0, 1, 0, 2, 10.0),
    Sketcher.Constraint("DistanceX", -1, 1, 0, 2, 83.0),
    Sketcher.Constraint("DistanceY", -1, 1, 0, 2, 34.0),
    Sketcher.Constraint("DistanceX", -1, 1, 1, 2, 82.0),
])
pocket22 = doc.addObject("PartDesign::Pocket", "Pocket021")
body.addObject(pocket22)
pocket22.Profile = sketch23
pocket22.Type = "UpToFirst"

# Sketch on XY plane
sketch24 = doc.addObject("Sketcher::SketchObject", "Sketch023")
body.addObject(sketch24)
sketch24.AttachmentSupport = (doc.XY_Plane, [""])
sketch24.MapMode = "FlatFace"
sketch24.AttachmentOffset = App.Placement(App.Vector(0, 0, 3), App.Rotation())
sketch24.addGeometry([
    Part.LineSegment(App.Vector(157, 23, 0), App.Vector(164, 23, 0)),  # 0
    Part.LineSegment(App.Vector(164, 23, 0), App.Vector(165, 24, 0)),  # 1
    Part.LineSegment(App.Vector(165, 24, 0), App.Vector(165, 34, 0)),  # 2
    Part.LineSegment(App.Vector(165, 34, 0), App.Vector(164, 35, 0)),  # 3
    Part.LineSegment(App.Vector(164, 35, 0), App.Vector(157, 35, 0)),  # 4
    Part.LineSegment(App.Vector(157, 35, 0), App.Vector(156, 34, 0)),  # 5
    Part.LineSegment(App.Vector(156, 34, 0), App.Vector(156, 24, 0)),  # 6
    Part.LineSegment(App.Vector(156, 24, 0), App.Vector(157, 23, 0)),  # 7
], False)
sketch24.addConstraint([
    Sketcher.Constraint("Coincident", 0, 2, 1, 1),
    Sketcher.Constraint("Coincident", 1, 2, 2, 1),
    Sketcher.Constraint("Coincident", 2, 2, 3, 1),
    Sketcher.Constraint("Coincident", 3, 2, 4, 1),
    Sketcher.Constraint("Coincident", 4, 2, 5, 1),
    Sketcher.Constraint("Coincident", 5, 2, 6, 1),
    Sketcher.Constraint("Coincident", 6, 2, 7, 1),
    Sketcher.Constraint("Coincident", 7, 2, 0, 1),
    Sketcher.Constraint("Horizontal", 0),
    Sketcher.Constraint("Vertical", 2),
    Sketcher.Constraint("Horizontal", 4),
    Sketcher.Constraint("Vertical", 6),
    Sketcher.Constraint("Perpendicular", 1, 3),
    Sketcher.Constraint("Perpendicular", 3, 5),
    Sketcher.Constraint("Perpendicular", 5, 7),
    Sketcher.Constraint("Horizontal", 2, 2, 5, 2),
    Sketcher.Constraint("Horizontal", 1, 2, 6, 2),
    Sketcher.Constraint("Vertical", 0, 2, 3, 2),
    Sketcher.Constraint("Vertical", 4, 2, 7, 2),
    Sketcher.Constraint("DistanceX", 0, 1, 0, 2, 7.0),
    Sketcher.Constraint("DistanceY", 2, 1, 2, 2, 10.0),
    Sketcher.Constraint("DistanceX", -1, 1, 0, 2, 164.0),
    Sketcher.Constraint("DistanceY", -1, 1, 0, 2, 23.0),
    Sketcher.Constraint("DistanceX", -1, 1, 1, 2, 165.0),
])
pocket23 = doc.addObject("PartDesign::Pocket", "Pocket022")
body.addObject(pocket23)
pocket23.Profile = sketch24
pocket23.Type = "UpToFirst"

# Sketch on XY plane
sketch25 = doc.addObject("Sketcher::SketchObject", "Sketch024")
body.addObject(sketch25)
sketch25.AttachmentSupport = (doc.XY_Plane, [""])
sketch25.MapMode = "FlatFace"
sketch25.AttachmentOffset = App.Placement(App.Vector(0, 0, 3), App.Rotation())
sketch25.addGeometry(Part.Circle(App.Vector(146, 25, 0), App.Vector(0, 0, 1), 1.05), False)
sketch25.addConstraint([
    Sketcher.Constraint("Diameter", 0, 2.1),
    Sketcher.Constraint("DistanceX", -1, 1, 0, 3, 146.0),
    Sketcher.Constraint("DistanceY", -1, 1, 0, 3, 25.0),
])
pocket24 = doc.addObject("PartDesign::Pocket", "Pocket023")
body.addObject(pocket24)
pocket24.Profile = sketch25
pocket24.Type = "UpToFirst"

doc.recompute()
